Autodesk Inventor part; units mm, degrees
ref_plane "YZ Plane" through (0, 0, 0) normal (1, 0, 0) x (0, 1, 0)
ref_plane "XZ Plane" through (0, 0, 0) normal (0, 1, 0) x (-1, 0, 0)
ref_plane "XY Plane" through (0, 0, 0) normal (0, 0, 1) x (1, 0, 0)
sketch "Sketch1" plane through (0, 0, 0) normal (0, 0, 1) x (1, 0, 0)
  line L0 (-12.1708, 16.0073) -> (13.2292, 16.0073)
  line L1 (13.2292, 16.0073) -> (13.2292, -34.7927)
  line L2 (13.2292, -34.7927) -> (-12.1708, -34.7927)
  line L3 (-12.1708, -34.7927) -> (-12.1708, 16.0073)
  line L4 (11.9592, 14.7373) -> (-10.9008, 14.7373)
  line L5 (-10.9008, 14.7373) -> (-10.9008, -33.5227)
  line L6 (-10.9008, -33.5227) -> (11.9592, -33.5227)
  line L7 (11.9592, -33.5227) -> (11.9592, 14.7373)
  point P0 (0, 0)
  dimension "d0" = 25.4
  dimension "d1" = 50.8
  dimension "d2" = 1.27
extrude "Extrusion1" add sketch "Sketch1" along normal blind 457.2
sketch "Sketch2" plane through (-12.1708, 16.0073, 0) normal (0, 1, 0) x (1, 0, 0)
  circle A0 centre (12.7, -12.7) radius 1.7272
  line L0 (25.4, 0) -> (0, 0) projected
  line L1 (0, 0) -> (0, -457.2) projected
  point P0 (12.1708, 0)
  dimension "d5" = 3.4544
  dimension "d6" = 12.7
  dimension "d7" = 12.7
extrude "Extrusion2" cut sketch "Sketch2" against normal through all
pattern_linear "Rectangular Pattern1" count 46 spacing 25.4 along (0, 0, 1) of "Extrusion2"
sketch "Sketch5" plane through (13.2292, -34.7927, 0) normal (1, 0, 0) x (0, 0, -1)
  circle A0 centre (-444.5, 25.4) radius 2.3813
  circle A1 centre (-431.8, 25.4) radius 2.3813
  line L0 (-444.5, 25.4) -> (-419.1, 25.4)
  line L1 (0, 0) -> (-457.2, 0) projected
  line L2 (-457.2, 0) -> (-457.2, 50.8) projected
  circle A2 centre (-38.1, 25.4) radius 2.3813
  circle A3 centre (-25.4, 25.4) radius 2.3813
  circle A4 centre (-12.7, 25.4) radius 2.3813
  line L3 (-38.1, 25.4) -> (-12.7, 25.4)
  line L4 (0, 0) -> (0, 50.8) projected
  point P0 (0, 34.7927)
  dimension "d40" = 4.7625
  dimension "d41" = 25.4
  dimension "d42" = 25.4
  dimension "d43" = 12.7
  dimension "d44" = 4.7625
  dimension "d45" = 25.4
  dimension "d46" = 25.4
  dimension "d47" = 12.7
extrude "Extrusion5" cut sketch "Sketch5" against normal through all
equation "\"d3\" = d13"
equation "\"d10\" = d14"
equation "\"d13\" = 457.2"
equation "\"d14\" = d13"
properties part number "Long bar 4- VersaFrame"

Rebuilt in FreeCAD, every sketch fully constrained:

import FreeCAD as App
import Part
import Sketcher
Q = App.Units.Quantity

doc = App.newDocument("Part")
body = doc.addObject("PartDesign::Body", "Body")

sketch1 = doc.addObject("Sketcher::SketchObject", "Sketch")
body.addObject(sketch1)
sketch1.AttachmentSupport = (doc.XY_Plane, [""])
sketch1.MapMode = "FlatFace"
sketch1.addGeometry([
    Part.LineSegment(App.Vector(13, 16, 0), App.Vector(-12, 16, 0)),
    Part.LineSegment(App.Vector(-12, 16, 0), App.Vector(-12, -35, 0)),
    Part.LineSegment(App.Vector(-12, -35, 0), App.Vector(13, -35, 0)),
    Part.LineSegment(App.Vector(13, -35, 0), App.Vector(13, 16, 0)),
    Part.LineSegment(App.Vector(-11, 15, 0), App.Vector(12, 15, 0)),
    Part.LineSegment(App.Vector(12, 15, 0), App.Vector(12, -34, 0)),
    Part.LineSegment(App.Vector(12, -34, 0), App.Vector(-11, -34, 0)),
    Part.LineSegment(App.Vector(-11, -34, 0), App.Vector(-11, 15, 0)),
], False)
sketch1.addConstraint([
    Sketcher.Constraint("Coincident", 0, 2, 1, 1),
    Sketcher.Constraint("Coincident", 1, 2, 2, 1),
    Sketcher.Constraint("Coincident", 2, 2, 3, 1),
    Sketcher.Constraint("Coincident", 3, 2, 0, 1),
    Sketcher.Constraint("Coincident", 4, 2, 5, 1),
    Sketcher.Constraint("Coincident", 5, 2, 6, 1),
    Sketcher.Constraint("Coincident", 6, 2, 7, 1),
    Sketcher.Constraint("Coincident", 7, 2, 4, 1),
    Sketcher.Constraint("Horizontal", 0),
    Sketcher.Constraint("Vertical", 1),
    Sketcher.Constraint("Horizontal", 2),
    Sketcher.Constraint("Vertical", 3),
    Sketcher.Constraint("Horizontal", 4),
    Sketcher.Constraint("Vertical", 5),
    Sketcher.Constraint("Horizontal", 6),
    Sketcher.Constraint("Vertical", 7),
    Sketcher.Constraint("DistanceX", 0, 2, 0, 1, Q("1 in")),
    Sketcher.Constraint("DistanceY", 1, 2, 1, 1, Q("2 in")),
    Sketcher.Constraint("DistanceX", 4, 2, 3, 2, Q("0.05 in")),
    Sketcher.Constraint("DistanceY", 4, 2, 3, 2, Q("0.05 in")),
    Sketcher.Constraint("DistanceY", 2, 2, 5, 2, Q("0.05 in")),
    Sketcher.Constraint("DistanceX", 1, 2, 6, 2, Q("0.05 in")),
    Sketcher.Constraint("DistanceY", -1, 1, 0, 2, Q("0.6302 in")),
    Sketcher.Constraint("DistanceX", 0, 2, -1, 1, 12.1708),
])
pad1 = doc.addObject("PartDesign::Pad", "Pad")
body.addObject(pad1)
pad1.Profile = sketch1
pad1.Length = Q("18 in")

sketch2 = doc.addObject("Sketcher::SketchObject", "Sketch001")
body.addObject(sketch2)
sketch2.AttachmentSupport = (doc.XZ_Plane, [""])
sketch2.MapMode = "FlatFace"
sketch2.AttachmentOffset = App.Placement(App.Vector(0, 0, -0.6302087 * 25.4), App.Rotation())
sketch2.addGeometry(Part.Circle(App.Vector(0.5, 12.7, 0), App.Vector(0, 0, 1), 1.7), False)
sketch2.addConstraint([
    Sketcher.Constraint("Diameter", 0, Q("0.136 in")),
    Sketcher.Constraint("DistanceY", -1, 1, 0, 3, Q("0.5 in")),
    Sketcher.Constraint("DistanceX", -1, 1, 0, 3, 0.5292),
])
pocket1 = doc.addObject("PartDesign::Pocket", "Pocket")
body.addObject(pocket1)
pocket1.Profile = sketch2
pocket1.Type = "ThroughAll"
pocket1.Reversed = True
doc.recompute()

linearpattern = doc.addObject("PartDesign::LinearPattern", "LinearPattern")
body.addObject(linearpattern)
linearpattern.Originals = [pocket1]
linearpattern.Direction = (doc.Z_Axis, [""])
linearpattern.Mode = "offset"
linearpattern.Offset = Q("1 in")
linearpattern.Occurrences = 46
body.Tip = linearpattern

sketch3 = doc.addObject("Sketcher::SketchObject", "Sketch002")
body.addObject(sketch3)
sketch3.AttachmentSupport = (doc.YZ_Plane, [""])
sketch3.MapMode = "FlatFace"
sketch3.AttachmentOffset = App.Placement(App.Vector(0, 0, 13.2292), App.Rotation())
sketch3.addGeometry([
    Part.Circle(App.Vector(-9.4, 444.5, 0), App.Vector(0, 0, 1), 2.4),
    Part.Circle(App.Vector(-9.4, 431.8, 0), App.Vector(0, 0, 1), 2.4),
    Part.Circle(App.Vector(-9.4, 38.1, 0), App.Vector(0, 0, 1), 2.4),
    Part.Circle(App.Vector(-9.4, 12.7, 0), App.Vector(0, 0, 1), 2.4),
    Part.Circle(App.Vector(-9.4, 25.4, 0), App.Vector(0, 0, 1), 2.4),
], False)
sketch3.addConstraint([
    Sketcher.Constraint("Equal", 0, 1),
    Sketcher.Constraint("Equal", 1, 2),
    Sketcher.Constraint("Equal", 2, 3),
    Sketcher.Constraint("Equal", 3, 4),
    Sketcher.Constraint("Vertical", 0, 3, 1, 3),
    Sketcher.Constraint("Vertical", 1, 3, 2, 3),
    Sketcher.Constraint("Vertical", 2, 3, 3, 3),
    Sketcher.Constraint("Vertical", 3, 3, 4, 3),
    Sketcher.Constraint("Diameter", 0, Q("0.1875 in")),
    Sketcher.Constraint("DistanceY", -1, 1, 4, 3, Q("1 in")),
    Sketcher.Constraint("DistanceY", 3, 3, 2, 3, Q("1 in")),
    Sketcher.Constraint("DistanceY", -1, 1, 3, 3, Q("0.5 in")),
    Sketcher.Constraint("DistanceY", 1, 3, 0, 3, Q("0.5 in")),
    Sketcher.Constraint("DistanceY", -1, 1, 1, 3, Q("17 in")),
    Sketcher.Constraint("DistanceX", 0, 3, -1, 1, Q("0.3698 in")),
])
pocket2 = doc.addObject("PartDesign::Pocket", "Pocket001")
body.addObject(pocket2)
pocket2.Profile = sketch3
pocket2.Type = "ThroughAll"

doc.recompute()
